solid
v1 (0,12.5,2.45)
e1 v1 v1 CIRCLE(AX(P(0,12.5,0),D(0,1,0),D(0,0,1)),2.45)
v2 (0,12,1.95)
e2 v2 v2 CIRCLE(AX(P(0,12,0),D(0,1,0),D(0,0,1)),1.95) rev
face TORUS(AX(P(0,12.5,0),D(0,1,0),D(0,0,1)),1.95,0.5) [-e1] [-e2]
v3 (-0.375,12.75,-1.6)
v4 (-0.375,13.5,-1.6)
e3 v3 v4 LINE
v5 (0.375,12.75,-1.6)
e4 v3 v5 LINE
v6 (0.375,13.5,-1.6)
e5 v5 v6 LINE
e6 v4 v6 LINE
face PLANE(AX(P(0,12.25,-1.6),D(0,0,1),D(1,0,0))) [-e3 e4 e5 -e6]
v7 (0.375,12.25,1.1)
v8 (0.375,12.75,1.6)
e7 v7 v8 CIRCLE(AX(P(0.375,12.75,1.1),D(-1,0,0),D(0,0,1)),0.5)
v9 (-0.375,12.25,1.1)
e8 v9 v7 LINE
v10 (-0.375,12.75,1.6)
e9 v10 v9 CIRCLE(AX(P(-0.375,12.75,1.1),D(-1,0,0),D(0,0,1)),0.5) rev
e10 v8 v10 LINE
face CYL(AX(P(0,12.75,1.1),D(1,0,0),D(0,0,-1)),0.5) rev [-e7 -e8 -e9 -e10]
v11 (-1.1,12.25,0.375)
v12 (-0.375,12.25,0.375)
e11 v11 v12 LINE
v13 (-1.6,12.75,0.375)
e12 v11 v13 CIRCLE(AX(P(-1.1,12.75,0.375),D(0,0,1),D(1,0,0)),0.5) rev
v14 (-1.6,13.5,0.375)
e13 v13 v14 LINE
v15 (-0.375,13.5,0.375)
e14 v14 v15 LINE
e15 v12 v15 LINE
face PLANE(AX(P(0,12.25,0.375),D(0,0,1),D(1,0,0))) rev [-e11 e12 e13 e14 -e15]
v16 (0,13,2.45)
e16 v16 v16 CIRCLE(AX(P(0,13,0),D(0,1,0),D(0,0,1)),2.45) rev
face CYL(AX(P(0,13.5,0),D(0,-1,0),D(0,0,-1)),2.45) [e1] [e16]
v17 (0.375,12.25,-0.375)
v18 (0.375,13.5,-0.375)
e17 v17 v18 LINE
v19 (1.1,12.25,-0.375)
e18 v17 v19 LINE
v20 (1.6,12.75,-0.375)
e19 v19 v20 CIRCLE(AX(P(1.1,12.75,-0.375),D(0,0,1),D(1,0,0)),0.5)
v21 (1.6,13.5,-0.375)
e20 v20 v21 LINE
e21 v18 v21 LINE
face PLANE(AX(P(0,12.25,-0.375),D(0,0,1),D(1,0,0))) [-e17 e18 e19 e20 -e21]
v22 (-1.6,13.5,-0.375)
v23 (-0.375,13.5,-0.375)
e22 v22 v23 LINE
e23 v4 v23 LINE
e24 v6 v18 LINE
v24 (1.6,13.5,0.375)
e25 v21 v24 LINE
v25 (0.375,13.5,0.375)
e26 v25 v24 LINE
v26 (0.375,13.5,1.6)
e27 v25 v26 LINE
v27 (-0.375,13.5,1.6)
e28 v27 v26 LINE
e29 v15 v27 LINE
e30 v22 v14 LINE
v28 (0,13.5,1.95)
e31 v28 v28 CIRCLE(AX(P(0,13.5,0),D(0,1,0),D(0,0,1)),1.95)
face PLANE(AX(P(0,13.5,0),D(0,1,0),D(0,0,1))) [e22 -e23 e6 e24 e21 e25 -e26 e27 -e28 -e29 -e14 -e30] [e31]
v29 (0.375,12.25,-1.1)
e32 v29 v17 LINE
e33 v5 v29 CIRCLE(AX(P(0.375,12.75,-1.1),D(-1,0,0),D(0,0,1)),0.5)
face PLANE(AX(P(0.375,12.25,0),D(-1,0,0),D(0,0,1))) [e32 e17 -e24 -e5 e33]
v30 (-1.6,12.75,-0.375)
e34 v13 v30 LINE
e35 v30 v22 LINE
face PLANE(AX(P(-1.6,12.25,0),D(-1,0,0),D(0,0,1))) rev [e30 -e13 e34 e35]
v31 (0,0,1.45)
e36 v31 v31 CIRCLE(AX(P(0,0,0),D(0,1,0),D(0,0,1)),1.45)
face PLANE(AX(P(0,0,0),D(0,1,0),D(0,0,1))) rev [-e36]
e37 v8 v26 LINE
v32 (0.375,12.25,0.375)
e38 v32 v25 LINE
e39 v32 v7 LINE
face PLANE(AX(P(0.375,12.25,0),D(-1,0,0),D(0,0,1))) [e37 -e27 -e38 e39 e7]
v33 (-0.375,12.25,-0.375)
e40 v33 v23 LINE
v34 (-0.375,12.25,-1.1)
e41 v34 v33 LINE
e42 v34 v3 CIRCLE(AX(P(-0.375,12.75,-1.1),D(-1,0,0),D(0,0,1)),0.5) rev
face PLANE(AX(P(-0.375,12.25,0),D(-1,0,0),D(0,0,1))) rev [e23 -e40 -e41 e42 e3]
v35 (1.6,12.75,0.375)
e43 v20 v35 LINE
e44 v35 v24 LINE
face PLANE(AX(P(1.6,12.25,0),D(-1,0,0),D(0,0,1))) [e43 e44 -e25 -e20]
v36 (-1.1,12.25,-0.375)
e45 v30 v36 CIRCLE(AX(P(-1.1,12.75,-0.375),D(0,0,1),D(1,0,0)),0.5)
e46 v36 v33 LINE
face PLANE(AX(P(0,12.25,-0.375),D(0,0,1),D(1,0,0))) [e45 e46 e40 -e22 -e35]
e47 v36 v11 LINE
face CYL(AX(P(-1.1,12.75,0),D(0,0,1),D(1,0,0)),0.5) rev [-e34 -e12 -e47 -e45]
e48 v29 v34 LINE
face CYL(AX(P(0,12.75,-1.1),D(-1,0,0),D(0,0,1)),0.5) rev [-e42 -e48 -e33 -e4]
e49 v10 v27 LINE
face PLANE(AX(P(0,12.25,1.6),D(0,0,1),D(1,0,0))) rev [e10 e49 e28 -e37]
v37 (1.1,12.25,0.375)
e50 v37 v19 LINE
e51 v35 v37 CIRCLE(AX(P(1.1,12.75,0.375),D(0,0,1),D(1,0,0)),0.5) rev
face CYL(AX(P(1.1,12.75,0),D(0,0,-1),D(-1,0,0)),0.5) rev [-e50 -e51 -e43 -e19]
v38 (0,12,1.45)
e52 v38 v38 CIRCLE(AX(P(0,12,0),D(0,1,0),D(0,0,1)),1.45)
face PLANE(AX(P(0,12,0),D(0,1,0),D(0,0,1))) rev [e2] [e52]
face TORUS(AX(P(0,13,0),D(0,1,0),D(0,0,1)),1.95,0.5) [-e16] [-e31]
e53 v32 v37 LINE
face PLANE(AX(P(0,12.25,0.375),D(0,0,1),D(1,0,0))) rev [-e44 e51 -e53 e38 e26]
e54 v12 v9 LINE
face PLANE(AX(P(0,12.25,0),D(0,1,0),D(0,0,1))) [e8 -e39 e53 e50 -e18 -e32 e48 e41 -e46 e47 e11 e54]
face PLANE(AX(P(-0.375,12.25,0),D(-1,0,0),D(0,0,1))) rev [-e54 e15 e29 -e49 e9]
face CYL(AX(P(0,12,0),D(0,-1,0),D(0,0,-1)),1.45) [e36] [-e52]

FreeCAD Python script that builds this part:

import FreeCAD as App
import Part
import Sketcher


def edges_at(feature, points):
    """Names of the edges that pass closest to the given points."""
    edges = feature.Shape.Edges
    near = lambda p: min(range(len(edges)), key=lambda i: edges[i].distToShape(Part.Vertex(*p))[0])
    return sorted({f"Edge{near(p) + 1}" for p in points})

doc = App.newDocument("Part")
body = doc.addObject("PartDesign::Body", "Body")

sketch1 = body.newObject("Sketcher::SketchObject", "Sketch")
sketch1.AttachmentSupport = (doc.getObject("XZ_Plane"), [""])
sketch1.MapMode = "FlatFace"
sketch1.addGeometry(Part.Circle(App.Vector(0, 0, 0), App.Vector(0, 0, 1), 1.4), False)
sketch1.addConstraint(Sketcher.Constraint("Coincident", 0, 3, -1, 1))
sketch1.addConstraint(Sketcher.Constraint("Diameter", 0, 2.9))
pad1 = body.newObject("PartDesign::Pad", "Pad")
pad1.Profile = sketch1
pad1.Length = 12
pad1.Reversed = True

sketch2 = body.newObject("Sketcher::SketchObject", "Sketch001")
sketch2.AttachmentSupport = (doc.getObject("XZ_Plane"), [""])
sketch2.MapMode = "FlatFace"
sketch2.AttachmentOffset = App.Placement(App.Vector(0, 0, -12), App.Rotation())
sketch2.addGeometry(Part.Circle(App.Vector(0, 0, 0), App.Vector(0, 0, 1), 2.5), False)
sketch2.addConstraint(Sketcher.Constraint("Coincident", 0, 3, -1, 1))
sketch2.addConstraint(Sketcher.Constraint("Diameter", 0, 4.9))
pad2 = body.newObject("PartDesign::Pad", "Pad001")
pad2.Profile = sketch2
pad2.Length = 1.5
pad2.Reversed = True
doc.recompute()

fillet = body.newObject("PartDesign::Fillet", "Fillet")
fillet.Base = (pad2, edges_at(pad2, [(0, 12, -2.45), (0, 13.5, -2.45)]))
fillet.Radius = 0.5

sketch3 = body.newObject("Sketcher::SketchObject", "Sketch002")
sketch3.AttachmentSupport = (doc.getObject("XZ_Plane"), [""])
sketch3.MapMode = "FlatFace"
sketch3.AttachmentOffset = App.Placement(App.Vector(0, 0, -13.5), App.Rotation())
sketch3.addGeometry(Part.LineSegment(App.Vector(-0.4, -1.6, 0), App.Vector(-0.4, -0.4, 0)), False)
sketch3.addGeometry(Part.LineSegment(App.Vector(-0.4, -0.4, 0), App.Vector(-1.6, -0.4, 0)), False)
sketch3.addGeometry(Part.LineSegment(App.Vector(-1.6, -0.4, 0), App.Vector(-1.6, 0.4, 0)), False)
sketch3.addGeometry(Part.LineSegment(App.Vector(-1.6, 0.4, 0), App.Vector(-0.4, 0.4, 0)), False)
sketch3.addGeometry(Part.LineSegment(App.Vector(-0.4, 0.4, 0), App.Vector(-0.4, 1.6, 0)), False)
sketch3.addGeometry(Part.LineSegment(App.Vector(-0.4, 1.6, 0), App.Vector(0.4, 1.6, 0)), False)
sketch3.addGeometry(Part.LineSegment(App.Vector(0.4, 1.6, 0), App.Vector(0.4, 0.4, 0)), False)
sketch3.addGeometry(Part.LineSegment(App.Vector(0.4, 0.4, 0), App.Vector(1.6, 0.4, 0)), False)
sketch3.addGeometry(Part.LineSegment(App.Vector(1.6, 0.4, 0), App.Vector(1.6, -0.4, 0)), False)
sketch3.addGeometry(Part.LineSegment(App.Vector(1.6, -0.4, 0), App.Vector(0.4, -0.4, 0)), False)
sketch3.addGeometry(Part.LineSegment(App.Vector(0.4, -0.4, 0), App.Vector(0.4, -1.6, 0)), False)
sketch3.addGeometry(Part.LineSegment(App.Vector(0.4, -1.6, 0), App.Vector(-0.4, -1.6, 0)), False)
sketch3.addConstraint(Sketcher.Constraint("Coincident", 0, 2, 1, 1))
sketch3.addConstraint(Sketcher.Constraint("Coincident", 1, 2, 2, 1))
sketch3.addConstraint(Sketcher.Constraint("Coincident", 2, 2, 3, 1))
sketch3.addConstraint(Sketcher.Constraint("Coincident", 3, 2, 4, 1))
sketch3.addConstraint(Sketcher.Constraint("Coincident", 4, 2, 5, 1))
sketch3.addConstraint(Sketcher.Constraint("Coincident", 5, 2, 6, 1))
sketch3.addConstraint(Sketcher.Constraint("Coincident", 6, 2, 7, 1))
sketch3.addConstraint(Sketcher.Constraint("Coincident", 7, 2, 8, 1))
sketch3.addConstraint(Sketcher.Constraint("Coincident", 8, 2, 9, 1))
sketch3.addConstraint(Sketcher.Constraint("Coincident", 9, 2, 10, 1))
sketch3.addConstraint(Sketcher.Constraint("Coincident", 10, 2, 11, 1))
sketch3.addConstraint(Sketcher.Constraint("Coincident", 11, 2, 0, 1))
sketch3.addConstraint(Sketcher.Constraint("Vertical", 0))
sketch3.addConstraint(Sketcher.Constraint("Horizontal", 1))
sketch3.addConstraint(Sketcher.Constraint("Vertical", 2))
sketch3.addConstraint(Sketcher.Constraint("Horizontal", 3))
sketch3.addConstraint(Sketcher.Constraint("Vertical", 4))
sketch3.addConstraint(Sketcher.Constraint("Horizontal", 5))
sketch3.addConstraint(Sketcher.Constraint("Vertical", 6))
sketch3.addConstraint(Sketcher.Constraint("Horizontal", 7))
sketch3.addConstraint(Sketcher.Constraint("Vertical", 8))
sketch3.addConstraint(Sketcher.Constraint("Horizontal", 9))
sketch3.addConstraint(Sketcher.Constraint("Vertical", 10))
sketch3.addConstraint(Sketcher.Constraint("Horizontal", 11))
sketch3.addConstraint(Sketcher.Constraint("Symmetric", 0, 2, 6, 2, -1, 1))
sketch3.addConstraint(Sketcher.Constraint("Symmetric", 2, 2, 8, 2, -1, 1))
sketch3.addConstraint(Sketcher.Constraint("Symmetric", 4, 2, 10, 2, -1, 1))
sketch3.addConstraint(Sketcher.Constraint("Symmetric", 3, 2, 6, 2, -2))
sketch3.addConstraint(Sketcher.Constraint("Equal", 9, 0))
sketch3.addConstraint(Sketcher.Constraint("Equal", 11, 2))
sketch3.addConstraint(Sketcher.Constraint("DistanceX", 5, 1, 5, 2, 0.75))
sketch3.addConstraint(Sketcher.Constraint("DistanceX", 1, 2, -1, 1, 1.6))
pocket1 = body.newObject("PartDesign::Pocket", "Pocket")
pocket1.Profile = sketch3
pocket1.Length = 1.25
pocket1.Reversed = True
doc.recompute()

fillet2 = body.newObject("PartDesign::Fillet", "Fillet001")
fillet2.Base = (pocket1, edges_at(pocket1, [
    (0, 12.25, 1.6),
    (-1.6, 12.25, 0),
    (0, 12.25, -1.6),
    (1.6, 12.25, 0),
]))
fillet2.Radius = 0.5

doc.recompute()
